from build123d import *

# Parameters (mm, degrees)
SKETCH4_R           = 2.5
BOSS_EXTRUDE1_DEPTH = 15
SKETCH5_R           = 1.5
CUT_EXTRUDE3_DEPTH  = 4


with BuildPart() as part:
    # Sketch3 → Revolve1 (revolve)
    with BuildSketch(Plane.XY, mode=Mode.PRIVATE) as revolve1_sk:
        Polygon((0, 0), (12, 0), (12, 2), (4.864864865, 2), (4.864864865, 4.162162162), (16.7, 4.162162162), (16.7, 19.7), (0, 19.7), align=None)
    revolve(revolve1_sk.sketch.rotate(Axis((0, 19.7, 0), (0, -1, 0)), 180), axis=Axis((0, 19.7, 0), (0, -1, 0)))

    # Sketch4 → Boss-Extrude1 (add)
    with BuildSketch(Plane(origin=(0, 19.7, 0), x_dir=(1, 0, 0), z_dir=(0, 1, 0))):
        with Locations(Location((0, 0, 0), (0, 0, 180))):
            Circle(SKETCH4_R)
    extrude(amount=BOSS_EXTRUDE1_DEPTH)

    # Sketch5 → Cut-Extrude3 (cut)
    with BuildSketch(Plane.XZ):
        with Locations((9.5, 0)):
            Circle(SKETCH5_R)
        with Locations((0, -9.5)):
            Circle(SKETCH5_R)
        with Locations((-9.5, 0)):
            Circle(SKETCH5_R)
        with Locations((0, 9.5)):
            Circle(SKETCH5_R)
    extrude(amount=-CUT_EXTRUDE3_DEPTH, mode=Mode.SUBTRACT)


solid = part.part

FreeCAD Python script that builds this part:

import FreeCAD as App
import Part
import Sketcher

doc = App.newDocument("Part")
body = doc.addObject("PartDesign::Body", "Body")

sketch1 = body.newObject("Sketcher::SketchObject", "Sketch")
sketch1.AttachmentSupport = (doc.getObject("XY_Plane"), [""])
sketch1.MapMode = "FlatFace"
sketch1.addGeometry(Part.LineSegment(App.Vector(0, 0, 0), App.Vector(12, 0, 0)), False)
sketch1.addGeometry(Part.LineSegment(App.Vector(12, 0, 0), App.Vector(12, 2, 0)), False)
sketch1.addGeometry(Part.LineSegment(App.Vector(12, 2, 0), App.Vector(4.864865, 2, 0)), False)
sketch1.addGeometry(Part.LineSegment(App.Vector(4.864865, 2, 0), App.Vector(4.864865, 4.162162, 0)), False)
sketch1.addGeometry(Part.LineSegment(App.Vector(4.864865, 4.162162, 0), App.Vector(16.7, 4.162162, 0)), False)
sketch1.addGeometry(Part.LineSegment(App.Vector(16.7, 4.162162, 0), App.Vector(16.7, 19.7, 0)), False)
sketch1.addGeometry(Part.LineSegment(App.Vector(16.7, 19.7, 0), App.Vector(0, 19.7, 0)), False)
sketch1.addGeometry(Part.LineSegment(App.Vector(0, 19.7, 0), App.Vector(0, 0, 0)), False)
sketch1.addConstraint(Sketcher.Constraint("Coincident", 0, 2, 1, 1))
sketch1.addConstraint(Sketcher.Constraint("Coincident", 1, 2, 2, 1))
sketch1.addConstraint(Sketcher.Constraint("Coincident", 2, 2, 3, 1))
sketch1.addConstraint(Sketcher.Constraint("Coincident", 3, 2, 4, 1))
sketch1.addConstraint(Sketcher.Constraint("Coincident", 4, 2, 5, 1))
sketch1.addConstraint(Sketcher.Constraint("Coincident", 5, 2, 6, 1))
sketch1.addConstraint(Sketcher.Constraint("Coincident", 6, 2, 7, 1))
sketch1.addConstraint(Sketcher.Constraint("Coincident", 7, 2, 0, 1))
sketch1.addConstraint(Sketcher.Constraint("Horizontal", 0))
sketch1.addConstraint(Sketcher.Constraint("Vertical", 1))
sketch1.addConstraint(Sketcher.Constraint("Horizontal", 2))
sketch1.addConstraint(Sketcher.Constraint("Vertical", 3))
sketch1.addConstraint(Sketcher.Constraint("Horizontal", 4))
sketch1.addConstraint(Sketcher.Constraint("Vertical", 5))
sketch1.addConstraint(Sketcher.Constraint("Horizontal", 6))
sketch1.addConstraint(Sketcher.Constraint("Vertical", 7))
sketch1.addConstraint(Sketcher.Constraint("Coincident", 7, 2, -1, 1))
sketch1.addConstraint(Sketcher.Constraint("DistanceX", 0, 1, 0, 2, 12.0))
sketch1.addConstraint(Sketcher.Constraint("DistanceY", 1, 1, 1, 2, 2.0))
sketch1.addConstraint(Sketcher.Constraint("DistanceX", 6, 2, 6, 1, 16.7))
sketch1.addConstraint(Sketcher.Constraint("DistanceY", 7, 2, 7, 1, 19.7))
sketch1.addConstraint(Sketcher.Constraint("DistanceX", 2, 2, 2, 1, 7.135135))
sketch1.addConstraint(Sketcher.Constraint("DistanceY", 3, 1, 3, 2, 2.162162))
revolution = body.newObject("PartDesign::Revolution", "Revolution")
revolution.Profile = sketch1
revolution.ReferenceAxis = (sketch1, ["V_Axis"])
revolution.Angle = 360

sketch2 = body.newObject("Sketcher::SketchObject", "Sketch001")
sketch2.AttachmentSupport = (doc.getObject("XZ_Plane"), [""])
sketch2.MapMode = "FlatFace"
sketch2.AttachmentOffset = App.Placement(App.Vector(0, 0, -19.7), App.Rotation())
sketch2.addGeometry(Part.Circle(App.Vector(0, 0, 0), App.Vector(0, 0, 1), 2.5), False)
sketch2.addConstraint(Sketcher.Constraint("Coincident", 0, 3, -1, 1))
sketch2.addConstraint(Sketcher.Constraint("Diameter", 0, 5.0))
pad1 = body.newObject("PartDesign::Pad", "Pad")
pad1.Profile = sketch2
pad1.Length = 15
pad1.Reversed = True

sketch3 = body.newObject("Sketcher::SketchObject", "Sketch002")
sketch3.AttachmentSupport = (doc.getObject("XZ_Plane"), [""])
sketch3.MapMode = "FlatFace"
sketch3.addGeometry(Part.Circle(App.Vector(9.5, 0, 0), App.Vector(0, 0, 1), 1.5), False)
sketch3.addGeometry(Part.Circle(App.Vector(0, -9.5, 0), App.Vector(0, 0, 1), 1.5), False)
sketch3.addGeometry(Part.Circle(App.Vector(-9.5, 0, 0), App.Vector(0, 0, 1), 1.5), False)
sketch3.addGeometry(Part.Circle(App.Vector(0, 9.5, 0), App.Vector(0, 0, 1), 1.5), False)
sketch3.addConstraint(Sketcher.Constraint("Equal", 0, 1))
sketch3.addConstraint(Sketcher.Constraint("Equal", 1, 2))
sketch3.addConstraint(Sketcher.Constraint("Equal", 2, 3))
sketch3.addConstraint(Sketcher.Constraint("Symmetric", 0, 3, 2, 3, -1, 1))
sketch3.addConstraint(Sketcher.Constraint("Symmetric", 1, 3, 3, 3, -1, 1))
sketch3.addConstraint(Sketcher.Constraint("PointOnObject", 0, 3, -1))
sketch3.addConstraint(Sketcher.Constraint("PointOnObject", 1, 3, -2))
sketch3.addConstraint(Sketcher.Constraint("Diameter", 0, 3.0))
sketch3.addConstraint(Sketcher.Constraint("DistanceX", 2, 3, 0, 3, 19.0))
sketch3.addConstraint(Sketcher.Constraint("DistanceY", 1, 3, 3, 3, 19.0))
pocket1 = body.newObject("PartDesign::Pocket", "Pocket")
pocket1.Profile = sketch3
pocket1.Length = 4

doc.recompute()
